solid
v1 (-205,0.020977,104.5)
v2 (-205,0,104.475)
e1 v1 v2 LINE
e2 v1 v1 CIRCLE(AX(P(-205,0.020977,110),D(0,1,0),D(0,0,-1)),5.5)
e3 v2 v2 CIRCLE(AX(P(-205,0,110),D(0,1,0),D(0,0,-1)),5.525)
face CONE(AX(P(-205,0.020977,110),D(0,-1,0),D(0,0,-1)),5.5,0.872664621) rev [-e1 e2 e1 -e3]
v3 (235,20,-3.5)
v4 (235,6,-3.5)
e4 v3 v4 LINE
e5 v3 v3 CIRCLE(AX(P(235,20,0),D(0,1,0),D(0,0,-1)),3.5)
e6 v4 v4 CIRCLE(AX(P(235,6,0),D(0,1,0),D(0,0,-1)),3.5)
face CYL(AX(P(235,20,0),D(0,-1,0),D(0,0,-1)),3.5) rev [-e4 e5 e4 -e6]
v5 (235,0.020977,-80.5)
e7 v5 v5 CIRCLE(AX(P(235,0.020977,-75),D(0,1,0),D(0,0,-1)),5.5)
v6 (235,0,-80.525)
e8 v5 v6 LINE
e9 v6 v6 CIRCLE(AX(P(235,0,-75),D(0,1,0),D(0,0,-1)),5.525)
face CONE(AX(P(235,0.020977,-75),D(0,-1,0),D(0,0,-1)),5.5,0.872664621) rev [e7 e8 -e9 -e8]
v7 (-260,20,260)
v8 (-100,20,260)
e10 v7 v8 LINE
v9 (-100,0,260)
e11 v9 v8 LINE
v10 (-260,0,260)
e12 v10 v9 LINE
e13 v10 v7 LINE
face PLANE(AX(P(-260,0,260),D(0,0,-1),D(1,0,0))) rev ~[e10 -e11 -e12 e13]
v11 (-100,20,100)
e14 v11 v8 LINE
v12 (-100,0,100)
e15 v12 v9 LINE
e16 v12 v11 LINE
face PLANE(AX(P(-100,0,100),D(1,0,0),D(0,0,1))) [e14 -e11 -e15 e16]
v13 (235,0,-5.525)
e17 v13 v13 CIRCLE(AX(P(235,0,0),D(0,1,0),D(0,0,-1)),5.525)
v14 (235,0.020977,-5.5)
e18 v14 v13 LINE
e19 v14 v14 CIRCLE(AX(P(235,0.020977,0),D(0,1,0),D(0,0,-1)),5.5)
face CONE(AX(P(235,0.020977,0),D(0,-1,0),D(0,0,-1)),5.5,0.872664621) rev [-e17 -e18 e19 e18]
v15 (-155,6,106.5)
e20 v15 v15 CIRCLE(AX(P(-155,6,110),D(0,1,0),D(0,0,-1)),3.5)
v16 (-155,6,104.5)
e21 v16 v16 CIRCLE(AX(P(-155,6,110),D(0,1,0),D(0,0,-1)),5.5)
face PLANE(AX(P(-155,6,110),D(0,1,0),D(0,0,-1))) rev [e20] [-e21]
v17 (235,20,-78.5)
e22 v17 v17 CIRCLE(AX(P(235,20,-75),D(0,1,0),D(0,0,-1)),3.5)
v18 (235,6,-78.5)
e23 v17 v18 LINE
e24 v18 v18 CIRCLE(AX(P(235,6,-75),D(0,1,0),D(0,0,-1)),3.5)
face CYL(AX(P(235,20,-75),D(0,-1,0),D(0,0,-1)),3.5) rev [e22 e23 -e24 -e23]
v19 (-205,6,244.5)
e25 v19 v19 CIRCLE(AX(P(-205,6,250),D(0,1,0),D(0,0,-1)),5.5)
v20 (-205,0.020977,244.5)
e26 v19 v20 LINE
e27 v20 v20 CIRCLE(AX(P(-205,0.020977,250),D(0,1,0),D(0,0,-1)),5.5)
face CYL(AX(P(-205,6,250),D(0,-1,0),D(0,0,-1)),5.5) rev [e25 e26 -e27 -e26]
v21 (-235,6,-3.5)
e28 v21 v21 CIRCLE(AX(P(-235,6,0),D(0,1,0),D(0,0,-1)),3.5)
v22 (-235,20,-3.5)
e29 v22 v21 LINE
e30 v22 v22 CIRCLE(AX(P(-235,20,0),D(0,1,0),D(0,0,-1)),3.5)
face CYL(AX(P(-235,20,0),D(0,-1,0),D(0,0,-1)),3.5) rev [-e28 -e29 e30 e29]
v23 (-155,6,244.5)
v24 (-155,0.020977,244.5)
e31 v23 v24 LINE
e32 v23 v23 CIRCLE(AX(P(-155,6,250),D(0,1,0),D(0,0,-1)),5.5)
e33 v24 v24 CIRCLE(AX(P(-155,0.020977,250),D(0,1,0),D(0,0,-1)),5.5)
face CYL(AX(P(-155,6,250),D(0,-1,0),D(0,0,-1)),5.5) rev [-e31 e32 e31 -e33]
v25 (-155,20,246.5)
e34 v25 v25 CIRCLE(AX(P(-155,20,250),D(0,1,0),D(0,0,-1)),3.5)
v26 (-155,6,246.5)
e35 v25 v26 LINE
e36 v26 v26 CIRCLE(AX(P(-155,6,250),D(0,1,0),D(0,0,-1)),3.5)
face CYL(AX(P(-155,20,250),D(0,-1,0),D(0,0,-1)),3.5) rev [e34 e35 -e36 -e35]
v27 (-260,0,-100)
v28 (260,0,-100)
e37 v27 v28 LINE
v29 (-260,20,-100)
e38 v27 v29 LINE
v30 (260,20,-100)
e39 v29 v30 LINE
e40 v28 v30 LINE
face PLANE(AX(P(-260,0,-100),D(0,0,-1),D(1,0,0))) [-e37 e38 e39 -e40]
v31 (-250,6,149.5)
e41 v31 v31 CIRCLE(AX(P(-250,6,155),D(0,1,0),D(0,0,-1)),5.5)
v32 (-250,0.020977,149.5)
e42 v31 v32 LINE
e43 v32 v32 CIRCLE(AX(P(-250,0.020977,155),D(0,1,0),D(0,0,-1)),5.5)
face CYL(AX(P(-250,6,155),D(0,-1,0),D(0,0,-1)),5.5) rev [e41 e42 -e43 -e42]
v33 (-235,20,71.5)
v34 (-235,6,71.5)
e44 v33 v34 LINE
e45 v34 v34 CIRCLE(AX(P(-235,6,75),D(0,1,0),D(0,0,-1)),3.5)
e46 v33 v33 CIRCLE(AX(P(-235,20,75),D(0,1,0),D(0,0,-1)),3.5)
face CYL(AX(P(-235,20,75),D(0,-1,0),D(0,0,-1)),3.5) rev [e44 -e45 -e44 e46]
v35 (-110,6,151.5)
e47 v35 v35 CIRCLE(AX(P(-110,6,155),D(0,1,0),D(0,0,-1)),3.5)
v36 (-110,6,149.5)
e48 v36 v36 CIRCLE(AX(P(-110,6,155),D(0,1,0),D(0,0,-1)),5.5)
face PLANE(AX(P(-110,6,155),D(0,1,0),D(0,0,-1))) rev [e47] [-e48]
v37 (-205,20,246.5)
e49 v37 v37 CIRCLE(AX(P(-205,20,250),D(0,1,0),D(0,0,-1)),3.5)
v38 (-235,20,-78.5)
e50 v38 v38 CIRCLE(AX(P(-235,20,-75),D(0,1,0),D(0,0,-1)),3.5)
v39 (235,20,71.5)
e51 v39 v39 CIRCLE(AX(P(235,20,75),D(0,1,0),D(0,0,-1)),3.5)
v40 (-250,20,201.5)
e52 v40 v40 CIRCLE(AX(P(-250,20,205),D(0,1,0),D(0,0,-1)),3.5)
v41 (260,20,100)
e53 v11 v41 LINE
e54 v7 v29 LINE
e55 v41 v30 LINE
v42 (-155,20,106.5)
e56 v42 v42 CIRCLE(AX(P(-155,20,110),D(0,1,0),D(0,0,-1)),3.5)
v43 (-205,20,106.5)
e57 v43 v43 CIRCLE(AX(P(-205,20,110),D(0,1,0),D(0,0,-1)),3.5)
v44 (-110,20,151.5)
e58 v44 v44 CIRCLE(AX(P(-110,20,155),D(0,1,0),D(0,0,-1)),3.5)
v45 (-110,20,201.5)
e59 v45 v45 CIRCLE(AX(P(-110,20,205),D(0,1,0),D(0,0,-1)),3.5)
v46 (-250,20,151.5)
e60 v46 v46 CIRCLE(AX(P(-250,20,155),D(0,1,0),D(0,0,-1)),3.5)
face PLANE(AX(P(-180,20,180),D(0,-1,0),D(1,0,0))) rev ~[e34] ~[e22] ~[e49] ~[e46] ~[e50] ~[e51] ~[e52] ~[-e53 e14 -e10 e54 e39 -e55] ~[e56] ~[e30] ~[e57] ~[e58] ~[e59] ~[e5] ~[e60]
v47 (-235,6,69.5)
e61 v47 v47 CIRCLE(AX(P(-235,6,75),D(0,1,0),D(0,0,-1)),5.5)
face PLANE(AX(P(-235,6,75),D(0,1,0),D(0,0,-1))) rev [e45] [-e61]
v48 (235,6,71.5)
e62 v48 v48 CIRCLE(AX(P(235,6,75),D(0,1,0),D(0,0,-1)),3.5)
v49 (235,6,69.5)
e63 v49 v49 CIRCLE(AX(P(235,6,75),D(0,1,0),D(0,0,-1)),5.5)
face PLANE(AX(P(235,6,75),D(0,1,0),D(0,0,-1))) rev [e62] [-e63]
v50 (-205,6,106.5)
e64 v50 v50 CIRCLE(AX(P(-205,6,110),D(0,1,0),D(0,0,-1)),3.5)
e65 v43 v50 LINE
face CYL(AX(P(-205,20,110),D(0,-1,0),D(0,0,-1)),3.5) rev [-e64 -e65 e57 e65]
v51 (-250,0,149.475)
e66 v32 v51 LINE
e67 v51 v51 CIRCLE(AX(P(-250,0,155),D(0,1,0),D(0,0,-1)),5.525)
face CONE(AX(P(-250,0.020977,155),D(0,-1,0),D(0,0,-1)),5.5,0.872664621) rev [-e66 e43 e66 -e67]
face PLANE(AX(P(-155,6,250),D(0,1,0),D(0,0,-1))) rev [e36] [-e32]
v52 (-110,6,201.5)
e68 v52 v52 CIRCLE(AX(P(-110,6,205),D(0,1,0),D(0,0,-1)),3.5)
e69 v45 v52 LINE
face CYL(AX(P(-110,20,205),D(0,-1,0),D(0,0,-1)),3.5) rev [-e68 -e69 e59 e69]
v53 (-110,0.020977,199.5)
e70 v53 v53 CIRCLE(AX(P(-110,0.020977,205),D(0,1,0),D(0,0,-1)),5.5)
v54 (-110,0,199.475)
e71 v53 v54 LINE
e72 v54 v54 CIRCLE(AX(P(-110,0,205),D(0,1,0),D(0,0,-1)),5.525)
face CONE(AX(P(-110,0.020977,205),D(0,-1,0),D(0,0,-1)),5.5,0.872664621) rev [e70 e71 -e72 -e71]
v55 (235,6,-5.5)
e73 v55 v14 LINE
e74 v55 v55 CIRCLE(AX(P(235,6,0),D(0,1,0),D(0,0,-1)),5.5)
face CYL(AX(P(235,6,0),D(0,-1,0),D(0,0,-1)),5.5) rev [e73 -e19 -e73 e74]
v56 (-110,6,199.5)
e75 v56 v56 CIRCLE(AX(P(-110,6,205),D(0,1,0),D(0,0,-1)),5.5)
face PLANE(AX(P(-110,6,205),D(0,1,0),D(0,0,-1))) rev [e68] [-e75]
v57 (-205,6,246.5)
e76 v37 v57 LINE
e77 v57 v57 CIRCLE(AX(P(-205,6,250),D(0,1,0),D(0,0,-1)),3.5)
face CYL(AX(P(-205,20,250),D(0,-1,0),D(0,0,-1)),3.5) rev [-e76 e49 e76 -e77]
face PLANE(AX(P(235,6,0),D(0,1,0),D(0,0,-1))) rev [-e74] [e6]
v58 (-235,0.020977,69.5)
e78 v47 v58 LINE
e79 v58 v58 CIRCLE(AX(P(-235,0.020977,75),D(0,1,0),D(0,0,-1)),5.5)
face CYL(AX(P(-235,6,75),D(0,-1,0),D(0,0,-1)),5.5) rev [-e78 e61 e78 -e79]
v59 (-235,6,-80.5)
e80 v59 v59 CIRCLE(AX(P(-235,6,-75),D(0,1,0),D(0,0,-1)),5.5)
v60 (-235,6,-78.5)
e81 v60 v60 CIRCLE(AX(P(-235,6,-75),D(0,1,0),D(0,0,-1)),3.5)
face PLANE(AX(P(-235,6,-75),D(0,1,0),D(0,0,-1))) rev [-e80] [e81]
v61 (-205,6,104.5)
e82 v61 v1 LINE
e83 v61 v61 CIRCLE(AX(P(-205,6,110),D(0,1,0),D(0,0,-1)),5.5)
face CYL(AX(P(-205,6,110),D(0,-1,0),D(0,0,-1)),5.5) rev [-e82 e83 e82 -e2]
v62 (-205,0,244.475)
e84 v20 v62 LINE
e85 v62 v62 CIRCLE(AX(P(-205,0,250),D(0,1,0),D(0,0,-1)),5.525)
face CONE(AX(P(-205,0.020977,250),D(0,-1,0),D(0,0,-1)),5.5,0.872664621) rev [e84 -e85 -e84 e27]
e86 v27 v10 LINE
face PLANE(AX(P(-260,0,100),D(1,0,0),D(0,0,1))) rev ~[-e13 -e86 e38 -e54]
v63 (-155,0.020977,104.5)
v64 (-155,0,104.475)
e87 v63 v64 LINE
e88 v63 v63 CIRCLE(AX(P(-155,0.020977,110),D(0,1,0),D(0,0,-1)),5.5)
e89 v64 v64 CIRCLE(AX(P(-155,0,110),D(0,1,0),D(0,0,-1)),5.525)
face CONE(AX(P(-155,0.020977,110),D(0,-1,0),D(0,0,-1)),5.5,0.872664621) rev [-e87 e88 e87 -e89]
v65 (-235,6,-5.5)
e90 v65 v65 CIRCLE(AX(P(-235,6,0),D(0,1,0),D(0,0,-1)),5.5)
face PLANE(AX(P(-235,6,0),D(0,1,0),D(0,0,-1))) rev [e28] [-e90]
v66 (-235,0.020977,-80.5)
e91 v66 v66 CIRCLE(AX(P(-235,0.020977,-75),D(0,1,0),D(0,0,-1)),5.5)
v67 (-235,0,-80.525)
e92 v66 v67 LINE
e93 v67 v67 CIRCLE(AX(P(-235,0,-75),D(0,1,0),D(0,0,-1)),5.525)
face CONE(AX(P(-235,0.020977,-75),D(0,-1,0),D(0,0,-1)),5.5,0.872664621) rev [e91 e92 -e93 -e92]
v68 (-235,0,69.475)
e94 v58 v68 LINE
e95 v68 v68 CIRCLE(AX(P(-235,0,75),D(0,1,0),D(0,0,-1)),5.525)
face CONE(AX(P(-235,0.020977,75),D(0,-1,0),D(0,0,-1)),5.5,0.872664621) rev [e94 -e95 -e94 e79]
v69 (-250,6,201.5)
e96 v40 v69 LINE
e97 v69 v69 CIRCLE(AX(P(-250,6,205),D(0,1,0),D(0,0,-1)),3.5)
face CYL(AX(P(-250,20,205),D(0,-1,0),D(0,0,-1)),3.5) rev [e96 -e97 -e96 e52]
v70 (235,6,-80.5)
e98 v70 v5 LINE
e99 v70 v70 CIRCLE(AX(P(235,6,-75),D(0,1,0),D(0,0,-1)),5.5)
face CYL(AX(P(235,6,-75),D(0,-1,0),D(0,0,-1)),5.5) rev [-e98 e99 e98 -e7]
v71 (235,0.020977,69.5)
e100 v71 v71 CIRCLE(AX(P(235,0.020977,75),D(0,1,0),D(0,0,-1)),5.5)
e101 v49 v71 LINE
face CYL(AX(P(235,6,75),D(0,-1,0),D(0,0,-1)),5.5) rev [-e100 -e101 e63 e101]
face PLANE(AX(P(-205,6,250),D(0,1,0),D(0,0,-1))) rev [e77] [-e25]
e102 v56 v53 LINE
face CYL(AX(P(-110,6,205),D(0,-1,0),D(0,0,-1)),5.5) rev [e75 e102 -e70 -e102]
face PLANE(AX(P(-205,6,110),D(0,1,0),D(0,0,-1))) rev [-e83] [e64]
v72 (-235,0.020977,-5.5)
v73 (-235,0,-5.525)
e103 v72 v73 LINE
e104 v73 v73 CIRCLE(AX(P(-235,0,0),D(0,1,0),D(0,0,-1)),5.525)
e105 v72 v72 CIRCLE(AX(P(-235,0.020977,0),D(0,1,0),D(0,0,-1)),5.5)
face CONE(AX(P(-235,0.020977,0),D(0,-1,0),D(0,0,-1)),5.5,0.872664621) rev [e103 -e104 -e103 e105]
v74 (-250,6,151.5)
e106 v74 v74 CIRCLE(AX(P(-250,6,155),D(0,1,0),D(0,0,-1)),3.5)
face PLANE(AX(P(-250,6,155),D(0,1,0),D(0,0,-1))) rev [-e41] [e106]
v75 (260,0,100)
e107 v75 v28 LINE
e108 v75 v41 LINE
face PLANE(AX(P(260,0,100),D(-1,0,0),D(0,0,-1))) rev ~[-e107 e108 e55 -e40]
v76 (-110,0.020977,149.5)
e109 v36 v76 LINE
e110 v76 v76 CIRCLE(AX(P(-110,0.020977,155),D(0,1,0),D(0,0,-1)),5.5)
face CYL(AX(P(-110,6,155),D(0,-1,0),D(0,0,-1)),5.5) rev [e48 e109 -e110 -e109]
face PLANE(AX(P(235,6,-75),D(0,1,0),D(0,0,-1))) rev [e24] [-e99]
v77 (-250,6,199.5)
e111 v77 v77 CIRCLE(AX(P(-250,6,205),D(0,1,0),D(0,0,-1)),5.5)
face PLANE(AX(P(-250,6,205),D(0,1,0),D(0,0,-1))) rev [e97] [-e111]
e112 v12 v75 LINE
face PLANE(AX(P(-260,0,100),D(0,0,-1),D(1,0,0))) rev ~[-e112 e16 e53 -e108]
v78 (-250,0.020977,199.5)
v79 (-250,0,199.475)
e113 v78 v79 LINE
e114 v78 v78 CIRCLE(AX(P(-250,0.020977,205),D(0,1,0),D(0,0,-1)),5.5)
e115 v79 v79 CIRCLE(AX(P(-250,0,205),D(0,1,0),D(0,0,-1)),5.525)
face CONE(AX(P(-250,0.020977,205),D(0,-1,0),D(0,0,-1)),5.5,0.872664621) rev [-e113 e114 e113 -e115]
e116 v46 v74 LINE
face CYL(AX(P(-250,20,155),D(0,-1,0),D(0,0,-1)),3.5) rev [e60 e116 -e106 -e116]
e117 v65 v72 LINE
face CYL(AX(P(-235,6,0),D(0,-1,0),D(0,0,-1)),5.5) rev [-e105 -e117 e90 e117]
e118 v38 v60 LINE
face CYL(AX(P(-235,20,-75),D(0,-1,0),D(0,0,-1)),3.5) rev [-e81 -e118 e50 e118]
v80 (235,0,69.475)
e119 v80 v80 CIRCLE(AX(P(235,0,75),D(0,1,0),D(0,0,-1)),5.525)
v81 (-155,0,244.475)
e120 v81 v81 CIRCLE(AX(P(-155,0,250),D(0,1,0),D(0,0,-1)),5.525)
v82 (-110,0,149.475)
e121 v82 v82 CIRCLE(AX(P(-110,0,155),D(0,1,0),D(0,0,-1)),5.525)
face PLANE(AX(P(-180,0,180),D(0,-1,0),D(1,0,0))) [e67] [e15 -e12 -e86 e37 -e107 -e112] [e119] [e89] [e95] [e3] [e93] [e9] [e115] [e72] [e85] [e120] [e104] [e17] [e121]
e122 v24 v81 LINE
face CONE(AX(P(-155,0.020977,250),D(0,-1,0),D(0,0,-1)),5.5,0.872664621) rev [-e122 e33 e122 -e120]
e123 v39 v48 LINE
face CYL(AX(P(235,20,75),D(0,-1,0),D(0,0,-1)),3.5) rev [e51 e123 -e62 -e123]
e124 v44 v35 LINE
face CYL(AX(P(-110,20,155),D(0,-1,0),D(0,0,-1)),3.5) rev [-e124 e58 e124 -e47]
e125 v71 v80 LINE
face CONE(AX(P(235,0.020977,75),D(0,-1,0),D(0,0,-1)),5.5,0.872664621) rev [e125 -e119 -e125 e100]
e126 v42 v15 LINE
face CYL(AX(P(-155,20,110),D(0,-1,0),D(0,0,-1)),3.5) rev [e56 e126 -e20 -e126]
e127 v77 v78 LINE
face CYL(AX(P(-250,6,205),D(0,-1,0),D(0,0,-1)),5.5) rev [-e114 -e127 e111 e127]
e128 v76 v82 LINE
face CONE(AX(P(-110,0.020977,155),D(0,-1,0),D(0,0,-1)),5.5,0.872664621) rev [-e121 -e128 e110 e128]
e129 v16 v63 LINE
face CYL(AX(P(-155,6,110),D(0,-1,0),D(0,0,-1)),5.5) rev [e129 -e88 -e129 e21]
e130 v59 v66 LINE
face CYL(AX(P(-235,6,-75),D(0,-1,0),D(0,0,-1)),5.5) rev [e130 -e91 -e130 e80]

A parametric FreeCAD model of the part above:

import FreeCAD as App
import Part
import Sketcher

V = App.Vector
Q = App.Units.Quantity


def add_polygon(sketch, points):
    """Adds a closed chain of lines whose ends are joined by coincident constraints."""
    first, n = sketch.GeometryCount, len(points)
    for a, b in zip(points, points[1:] + points[:1]):
        sketch.addGeometry(Part.LineSegment(App.Vector(*a, 0), App.Vector(*b, 0)), False)
    for i in range(n):
        sketch.addConstraint(Sketcher.Constraint("Coincident", first + i, 2, first + (i + 1) % n, 1))

doc = App.newDocument("Part")
body = doc.addObject("PartDesign::Body", "Body")

# Sketch on XZ plane
sketch1 = body.newObject("Sketcher::SketchObject", "Sketch")
sketch1.AttachmentSupport = (doc.getObject("XZ_Plane"), [""])
sketch1.MapMode = "FlatFace"
add_polygon(sketch1, [(-260, -100), (-260, 100), (260, 100), (260, -100)])  # lines 0-3
sketch1.addConstraint(Sketcher.Constraint("Vertical", 0))
sketch1.addConstraint(Sketcher.Constraint("Horizontal", 1))
sketch1.addConstraint(Sketcher.Constraint("Vertical", 2))
sketch1.addConstraint(Sketcher.Constraint("Horizontal", 3))
sketch1.addConstraint(Sketcher.Constraint("Symmetric", 0, 2, 2, 2, -1, 1))
sketch1.addConstraint(Sketcher.Constraint("DistanceX", 1, 1, 1, 2, Q("520 mm")))
sketch1.addConstraint(Sketcher.Constraint("DistanceY", 0, 1, 0, 2, Q("200 mm")))
pad1 = body.newObject("PartDesign::Pad", "Pad")
pad1.Profile = sketch1
pad1.Length = 20
pad1.Reversed = True

# Sketch on XZ plane
sketch2 = body.newObject("Sketcher::SketchObject", "Sketch001")
sketch2.AttachmentSupport = (doc.getObject("XZ_Plane"), [""])
sketch2.MapMode = "FlatFace"
add_polygon(sketch2, [(-260, 260), (-260, 100), (-100, 100), (-100, 260)])  # lines 0-3
sketch2.addConstraint(Sketcher.Constraint("Vertical", 0))
sketch2.addConstraint(Sketcher.Constraint("Horizontal", 1))
sketch2.addConstraint(Sketcher.Constraint("Vertical", 2))
sketch2.addConstraint(Sketcher.Constraint("Horizontal", 3))
sketch2.addConstraint(Sketcher.Constraint("Equal", 3, 0))
sketch2.addConstraint(Sketcher.Constraint("DistanceX", 1, 1, 1, 2, Q("160 mm")))
sketch2.addConstraint(Sketcher.Constraint("DistanceX", 0, 2, -1, 1, Q("260 mm")))
sketch2.addConstraint(Sketcher.Constraint("DistanceY", -1, 1, 0, 2, Q("100 mm")))
pad2 = body.newObject("PartDesign::Pad", "Pad001")
pad2.Profile = sketch2
pad2.Length = 20
pad2.Reversed = True

# Sketch on YZ plane
sketch3 = body.newObject("Sketcher::SketchObject", "Sketch002")
sketch3.AttachmentSupport = (doc.getObject("YZ_Plane"), [""])
sketch3.MapMode = "FlatFace"
sketch3.AttachmentOffset = App.Placement(V(0, 0, 235), App.Rotation())
add_polygon(sketch3, [(20, -75), (0, -75), (0, -80.525), (0.020977, -80.5), (6, -80.5), (6, -78.5), (20, -78.5)])  # lines 0-6
sketch3.addGeometry(Part.LineSegment(V(0, -75, 0), V(20, -75, 0)), True)  # axis
sketch3.addConstraint(Sketcher.Constraint("Horizontal", 0))
sketch3.addConstraint(Sketcher.Constraint("Vertical", 1))
sketch3.addConstraint(Sketcher.Constraint("Horizontal", 3))
sketch3.addConstraint(Sketcher.Constraint("Vertical", 4))
sketch3.addConstraint(Sketcher.Constraint("Horizontal", 5))
sketch3.addConstraint(Sketcher.Constraint("Vertical", 6))
sketch3.addConstraint(Sketcher.Constraint("Horizontal", 7))
sketch3.addConstraint(Sketcher.Constraint("Coincident", 7, 1, 0, 2))
sketch3.addConstraint(Sketcher.Constraint("PointOnObject", 0, 2, -2))
sketch3.addConstraint(Sketcher.Constraint("Vertical", 5, 2, 7, 2))
sketch3.addConstraint(Sketcher.Constraint("DistanceX", 0, 2, 0, 1, Q("20 mm")))
sketch3.addConstraint(Sketcher.Constraint("DistanceX", 5, 1, 5, 2, Q("14 mm")))
sketch3.addConstraint(Sketcher.Constraint("DistanceY", 4, 1, 4, 2, Q("2 mm")))
sketch3.addConstraint(Sketcher.Constraint("Angle", 2, Q("50 deg")))
sketch3.addConstraint(Sketcher.Constraint("DistanceY", 6, 1, 6, 2, Q("3.5 mm")))
sketch3.addConstraint(Sketcher.Constraint("DistanceY", 0, 2, -1, 1, Q("75 mm")))
sketch3.addConstraint(Sketcher.Constraint("DistanceY", 1, 2, 1, 1, Q("5.525 mm")))
groove = body.newObject("PartDesign::Groove", "Groove")
groove.Profile = sketch3
groove.ReferenceAxis = (sketch3, ["Axis0"])
groove.Angle = 360
doc.recompute()

linearpattern = body.newObject("PartDesign::LinearPattern", "LinearPattern")
linearpattern.Originals = [groove]
linearpattern.Direction = (doc.getObject("Z_Axis"), [""])
linearpattern.Mode = "offset"
linearpattern.Offset = 150
linearpattern.Occurrences = 2
body.Tip = linearpattern
doc.recompute()

linearpattern2 = body.newObject("PartDesign::LinearPattern", "LinearPattern001")
linearpattern2.Originals = [groove]
linearpattern2.Direction = (doc.getObject("X_Axis"), [""])
linearpattern2.Mode = "offset"
linearpattern2.Offset = 470
linearpattern2.Occurrences = 2
linearpattern2.Reversed = True
body.Tip = linearpattern2
doc.recompute()

datumline = body.newObject("PartDesign::Line", "DatumLine")
datumline.Placement = App.Placement(V(0, 0, 0), App.Rotation(V(0, 0, 1), V(-0.952659211, 0, 0.304040174)))
linearpattern3 = body.newObject("PartDesign::LinearPattern", "LinearPattern002")
linearpattern3.Originals = [groove]
linearpattern3.Direction = (datumline, [""])
linearpattern3.Mode = "offset"
linearpattern3.Offset = 493.355855
linearpattern3.Occurrences = 2
body.Tip = linearpattern3
doc.recompute()

linearpattern4 = body.newObject("PartDesign::LinearPattern", "LinearPattern003")
linearpattern4.Originals = [groove]
linearpattern4.Direction = (doc.getObject("Z_Axis"), [""])
linearpattern4.Mode = "offset"
linearpattern4.Offset = 75
linearpattern4.Occurrences = 2
body.Tip = linearpattern4
doc.recompute()

datumline2 = body.newObject("PartDesign::Line", "DatumLine001")
datumline2.Placement = App.Placement(V(0, 0, 0), App.Rotation(V(0, 0, 1), V(-0.987506103, 0, 0.157580761)))
linearpattern5 = body.newObject("PartDesign::LinearPattern", "LinearPattern004")
linearpattern5.Originals = [groove]
linearpattern5.Direction = (datumline2, [""])
linearpattern5.Mode = "offset"
linearpattern5.Offset = 475.946426
linearpattern5.Occurrences = 2
body.Tip = linearpattern5
doc.recompute()

datumline3 = body.newObject("PartDesign::Line", "DatumLine002")
datumline3.Placement = App.Placement(V(0, 0, 0), App.Rotation(V(0, 0, 1), V(-0.76822128, 0, 0.6401844)))
linearpattern6 = body.newObject("PartDesign::LinearPattern", "LinearPattern005")
linearpattern6.Originals = [groove]
linearpattern6.Direction = (datumline3, [""])
linearpattern6.Mode = "offset"
linearpattern6.Offset = 507.666229
linearpattern6.Occurrences = 2
body.Tip = linearpattern6
doc.recompute()

datumline4 = body.newObject("PartDesign::Line", "DatumLine003")
datumline4.Placement = App.Placement(V(0, 0, 0), App.Rotation(V(0, 0, 1), V(-0.804366062, 0, 0.594134023)))
linearpattern7 = body.newObject("PartDesign::LinearPattern", "LinearPattern006")
linearpattern7.Originals = [groove]
linearpattern7.Direction = (datumline4, [""])
linearpattern7.Mode = "offset"
linearpattern7.Offset = 547.014625
linearpattern7.Occurrences = 2
body.Tip = linearpattern7
doc.recompute()

datumline5 = body.newObject("PartDesign::Line", "DatumLine004")
datumline5.Placement = App.Placement(V(0, 0, 0), App.Rotation(V(0, 0, 1), V(-0.903501842, 0, 0.428584207)))
linearpattern8 = body.newObject("PartDesign::LinearPattern", "LinearPattern007")
linearpattern8.Originals = [groove]
linearpattern8.Direction = (datumline5, [""])
linearpattern8.Mode = "offset"
linearpattern8.Offset = 431.653796
linearpattern8.Occurrences = 2
body.Tip = linearpattern8
doc.recompute()

datumline6 = body.newObject("PartDesign::Line", "DatumLine005")
datumline6.Placement = App.Placement(V(0, 0, 0), App.Rotation(V(0, 0, 1), V(-0.92183244, 0, 0.387588639)))
linearpattern9 = body.newObject("PartDesign::LinearPattern", "LinearPattern008")
linearpattern9.Originals = [groove]
linearpattern9.Direction = (datumline6, [""])
linearpattern9.Mode = "offset"
linearpattern9.Offset = 477.310172
linearpattern9.Occurrences = 2
body.Tip = linearpattern9
doc.recompute()

datumline7 = body.newObject("PartDesign::Line", "DatumLine006")
datumline7.Placement = App.Placement(V(0, 0, 0), App.Rotation(V(0, 0, 1), V(-0.832050294, 0, 0.554700196)))
linearpattern10 = body.newObject("PartDesign::LinearPattern", "LinearPattern009")
linearpattern10.Originals = [groove]
linearpattern10.Direction = (datumline7, [""])
linearpattern10.Mode = "offset"
linearpattern10.Offset = 414.638397
linearpattern10.Occurrences = 2
body.Tip = linearpattern10
doc.recompute()

datumline8 = body.newObject("PartDesign::Line", "DatumLine007")
datumline8.Placement = App.Placement(V(0, 0, 0), App.Rotation(V(0, 0, 1), V(-0.90354808, 0, 0.428486718)))
linearpattern11 = body.newObject("PartDesign::LinearPattern", "LinearPattern010")
linearpattern11.Originals = [groove]
linearpattern11.Direction = (datumline8, [""])
linearpattern11.Mode = "offset"
linearpattern11.Offset = 536.772764
linearpattern11.Occurrences = 2
body.Tip = linearpattern11
doc.recompute()

datumline9 = body.newObject("PartDesign::Line", "DatumLine008")
datumline9.Placement = App.Placement(V(0, 0, 0), App.Rotation(V(0, 0, 1), V(-0.866036909, 0, 0.499980071)))
linearpattern12 = body.newObject("PartDesign::LinearPattern", "LinearPattern011")
linearpattern12.Originals = [groove]
linearpattern12.Direction = (datumline9, [""])
linearpattern12.Mode = "offset"
linearpattern12.Offset = 560.022321
linearpattern12.Occurrences = 2
body.Tip = linearpattern12
doc.recompute()

datumline10 = body.newObject("PartDesign::Line", "DatumLine009")
datumline10.Placement = App.Placement(V(0, 0, 0), App.Rotation(V(0, 0, 1), V(-0.776458094, 0, 0.630168888)))
linearpattern13 = body.newObject("PartDesign::LinearPattern", "LinearPattern012")
linearpattern13.Originals = [groove]
linearpattern13.Direction = (datumline10, [""])
linearpattern13.Mode = "offset"
linearpattern13.Offset = 444.325331
linearpattern13.Occurrences = 2
body.Tip = linearpattern13

doc.recompute()
